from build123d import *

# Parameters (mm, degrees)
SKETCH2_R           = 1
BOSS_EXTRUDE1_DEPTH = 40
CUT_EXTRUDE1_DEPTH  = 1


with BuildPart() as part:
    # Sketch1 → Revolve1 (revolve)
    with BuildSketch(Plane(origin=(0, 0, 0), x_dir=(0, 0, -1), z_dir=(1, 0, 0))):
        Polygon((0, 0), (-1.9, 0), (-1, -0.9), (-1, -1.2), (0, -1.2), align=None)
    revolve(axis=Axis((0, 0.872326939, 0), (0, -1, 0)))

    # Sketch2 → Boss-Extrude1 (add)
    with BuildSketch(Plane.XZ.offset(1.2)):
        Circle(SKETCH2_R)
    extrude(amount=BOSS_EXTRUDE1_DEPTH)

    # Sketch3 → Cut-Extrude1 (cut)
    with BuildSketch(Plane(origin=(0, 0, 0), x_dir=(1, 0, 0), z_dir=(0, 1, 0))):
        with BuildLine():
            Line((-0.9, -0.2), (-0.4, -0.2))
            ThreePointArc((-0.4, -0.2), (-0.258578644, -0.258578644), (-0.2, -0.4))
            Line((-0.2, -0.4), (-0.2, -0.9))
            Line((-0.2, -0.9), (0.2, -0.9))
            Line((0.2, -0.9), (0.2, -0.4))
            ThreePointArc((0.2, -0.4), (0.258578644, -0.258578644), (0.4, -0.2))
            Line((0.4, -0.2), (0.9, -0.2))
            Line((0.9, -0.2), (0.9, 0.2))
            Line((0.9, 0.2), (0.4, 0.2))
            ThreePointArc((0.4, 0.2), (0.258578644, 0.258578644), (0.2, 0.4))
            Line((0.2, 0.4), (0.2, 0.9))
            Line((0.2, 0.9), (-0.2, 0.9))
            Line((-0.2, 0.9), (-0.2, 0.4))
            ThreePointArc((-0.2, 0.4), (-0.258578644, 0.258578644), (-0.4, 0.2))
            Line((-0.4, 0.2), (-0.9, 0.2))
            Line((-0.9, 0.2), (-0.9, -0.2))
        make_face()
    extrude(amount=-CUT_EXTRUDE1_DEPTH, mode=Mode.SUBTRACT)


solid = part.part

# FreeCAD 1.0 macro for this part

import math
import FreeCAD as App
import Part
import Sketcher
Q = App.Units.Quantity


def add_polygon(sketch, points):
    """Adds a closed chain of lines whose ends are joined by coincident constraints."""
    first, n = sketch.GeometryCount, len(points)
    for a, b in zip(points, points[1:] + points[:1]):
        sketch.addGeometry(Part.LineSegment(App.Vector(*a, 0), App.Vector(*b, 0)), False)
    for i in range(n):
        sketch.addConstraint(Sketcher.Constraint("Coincident", first + i, 2, first + (i + 1) % n, 1))

doc = App.newDocument("Part")
params = doc.addObject("Spreadsheet::Sheet", "Params")
for row, (alias, value) in enumerate([
    ("sketch1_height", "1 mm"),
    ("sketch1_width", "0.3 mm"),
    ("sketch1_width2", "1.2 mm"),
    ("revolution_angle", "360 deg"),
    ("sketch2_diameter", "2 mm"),
    ("pad1_length", "40 mm"),
    ("sketch3_radius", "0.2 mm"),
    ("sketch3_width", "0.5 mm"),
    ("sketch3_width2", "0.4 mm"),
    ("pocket1_length", "1 mm"),
], start=1):
    params.set(f"A{row}", alias)
    params.set(f"B{row}", "=" + value)
    params.setAlias(f"B{row}", alias)

body = doc.addObject("PartDesign::Body", "Body")

# Sketch on YZ plane
sketch1 = doc.addObject("Sketcher::SketchObject", "Sketch")
body.addObject(sketch1)
sketch1.AttachmentSupport = (doc.YZ_Plane, [""])
sketch1.MapMode = "FlatFace"
add_polygon(sketch1, [(0, 0), (0, 1.9), (-0.9, 1), (-1.2, 1), (-1.2, 0)])  # lines 0-4
sketch1.addConstraint([
    Sketcher.Constraint("Vertical", 0),
    Sketcher.Constraint("Horizontal", 2),
    Sketcher.Constraint("Vertical", 3),
    Sketcher.Constraint("Horizontal", 4),
    Sketcher.Constraint("Coincident", 4, 2, -1, 1),
    Sketcher.Constraint("DistanceY", 3, 2, 3, 1, 1.0),
    Sketcher.Constraint("Angle", 1, Q("-135 deg")),
    Sketcher.Constraint("DistanceX", 2, 2, 2, 1, 0.3),
    Sketcher.Constraint("DistanceX", 4, 1, 4, 2, 1.2),
])
sketch1.setExpression("Constraints[10]", "Params.sketch1_height")
sketch1.setExpression("Constraints[12]", "Params.sketch1_width")
sketch1.setExpression("Constraints[13]", "Params.sketch1_width2")
revolution = doc.addObject("PartDesign::Revolution", "Revolution")
body.addObject(revolution)
revolution.Profile = sketch1
revolution.ReferenceAxis = (sketch1, ["H_Axis"])
revolution.setExpression("Angle", "Params.revolution_angle")

# Sketch on XZ plane
sketch2 = doc.addObject("Sketcher::SketchObject", "Sketch001")
body.addObject(sketch2)
sketch2.AttachmentSupport = (doc.XZ_Plane, [""])
sketch2.MapMode = "FlatFace"
sketch2.AttachmentOffset = App.Placement(App.Vector(0, 0, 1.2), App.Rotation())
sketch2.addGeometry(Part.Circle(App.Vector(0, 0, 0), App.Vector(0, 0, 1), 1), False)
sketch2.addConstraint([
    Sketcher.Constraint("Coincident", 0, 3, -1, 1),
    Sketcher.Constraint("Diameter", 0, 2.0),
])
sketch2.setExpression("Constraints[1]", "Params.sketch2_diameter")
pad1 = doc.addObject("PartDesign::Pad", "Pad")
body.addObject(pad1)
pad1.Profile = sketch2
pad1.setExpression("Length", "Params.pad1_length")

# Sketch on XZ plane
sketch3 = doc.addObject("Sketcher::SketchObject", "Sketch002")
body.addObject(sketch3)
sketch3.AttachmentSupport = (doc.XZ_Plane, [""])
sketch3.MapMode = "FlatFace"
sketch3.addGeometry([
    Part.LineSegment(App.Vector(-0.9, 0.2, 0), App.Vector(-0.4, 0.2, 0)),  # 0
    Part.ArcOfCircle(Part.Circle(App.Vector(-0.4, 0.4, 0), App.Vector(0, 0, 1), 0.2), math.radians(-90), math.radians(0)),  # 1
    Part.LineSegment(App.Vector(-0.2, 0.4, 0), App.Vector(-0.2, 0.9, 0)),  # 2
    Part.LineSegment(App.Vector(-0.2, 0.9, 0), App.Vector(0.2, 0.9, 0)),  # 3
    Part.LineSegment(App.Vector(0.2, 0.9, 0), App.Vector(0.2, 0.4, 0)),  # 4
    Part.ArcOfCircle(Part.Circle(App.Vector(0.4, 0.4, 0), App.Vector(0, 0, 1), 0.2), math.radians(-180), math.radians(-90)),  # 5
    Part.LineSegment(App.Vector(0.4, 0.2, 0), App.Vector(0.9, 0.2, 0)),  # 6
    Part.LineSegment(App.Vector(0.9, 0.2, 0), App.Vector(0.9, -0.2, 0)),  # 7
    Part.LineSegment(App.Vector(0.9, -0.2, 0), App.Vector(0.4, -0.2, 0)),  # 8
    Part.ArcOfCircle(Part.Circle(App.Vector(0.4, -0.4, 0), App.Vector(0, 0, 1), 0.2), math.radians(90), math.radians(180)),  # 9
    Part.LineSegment(App.Vector(0.2, -0.4, 0), App.Vector(0.2, -0.9, 0)),  # 10
    Part.LineSegment(App.Vector(0.2, -0.9, 0), App.Vector(-0.2, -0.9, 0)),  # 11
    Part.LineSegment(App.Vector(-0.2, -0.9, 0), App.Vector(-0.2, -0.4, 0)),  # 12
    Part.ArcOfCircle(Part.Circle(App.Vector(-0.4, -0.4, 0), App.Vector(0, 0, 1), 0.2), math.radians(0), math.radians(90)),  # 13
    Part.LineSegment(App.Vector(-0.4, -0.2, 0), App.Vector(-0.9, -0.2, 0)),  # 14
    Part.LineSegment(App.Vector(-0.9, -0.2, 0), App.Vector(-0.9, 0.2, 0)),  # 15
], False)
sketch3.addConstraint([
    Sketcher.Constraint("Tangent", 0, 2, 1, 1),
    Sketcher.Constraint("Tangent", 1, 2, 2, 1),
    Sketcher.Constraint("Coincident", 2, 2, 3, 1),
    Sketcher.Constraint("Coincident", 3, 2, 4, 1),
    Sketcher.Constraint("Tangent", 4, 2, 5, 1),
    Sketcher.Constraint("Tangent", 5, 2, 6, 1),
    Sketcher.Constraint("Coincident", 6, 2, 7, 1),
    Sketcher.Constraint("Coincident", 7, 2, 8, 1),
    Sketcher.Constraint("Tangent", 8, 2, 9, 1),
    Sketcher.Constraint("Tangent", 9, 2, 10, 1),
    Sketcher.Constraint("Coincident", 10, 2, 11, 1),
    Sketcher.Constraint("Coincident", 11, 2, 12, 1),
    Sketcher.Constraint("Tangent", 12, 2, 13, 1),
    Sketcher.Constraint("Tangent", 13, 2, 14, 1),
    Sketcher.Constraint("Coincident", 14, 2, 15, 1),
    Sketcher.Constraint("Coincident", 15, 2, 0, 1),
    Sketcher.Constraint("Horizontal", 0),
    Sketcher.Constraint("Vertical", 2),
    Sketcher.Constraint("Horizontal", 3),
    Sketcher.Constraint("Vertical", 4),
    Sketcher.Constraint("Horizontal", 6),
    Sketcher.Constraint("Vertical", 7),
    Sketcher.Constraint("Horizontal", 8),
    Sketcher.Constraint("Vertical", 10),
    Sketcher.Constraint("Horizontal", 11),
    Sketcher.Constraint("Vertical", 12),
    Sketcher.Constraint("Horizontal", 14),
    Sketcher.Constraint("Vertical", 15),
    Sketcher.Constraint("Equal", 1, 5),
    Sketcher.Constraint("Equal", 5, 9),
    Sketcher.Constraint("Equal", 9, 13),
    Sketcher.Constraint("Symmetric", 1, 3, 9, 3, -1, 1),
    Sketcher.Constraint("Symmetric", 5, 3, 13, 3, -1, 1),
    Sketcher.Constraint("Symmetric", 1, 3, 5, 3, -2),
    Sketcher.Constraint("Equal", 0, 6),
    Sketcher.Constraint("Equal", 14, 2),
    Sketcher.Constraint("Equal", 11, 7),
    Sketcher.Constraint("Equal", 4, 10),
    Sketcher.Constraint("Radius", 1, 0.2),
    Sketcher.Constraint("DistanceX", 0, 1, 0, 2, 0.5),
    Sketcher.Constraint("DistanceX", 3, 1, 3, 2, 0.4),
])
sketch3.setExpression("Constraints[38]", "Params.sketch3_radius")
sketch3.setExpression("Constraints[39]", "Params.sketch3_width")
sketch3.setExpression("Constraints[40]", "Params.sketch3_width2")
pocket1 = doc.addObject("PartDesign::Pocket", "Pocket")
body.addObject(pocket1)
pocket1.Profile = sketch3
pocket1.setExpression("Length", "Params.pocket1_length")
pocket1.Reversed = True

doc.recompute()
